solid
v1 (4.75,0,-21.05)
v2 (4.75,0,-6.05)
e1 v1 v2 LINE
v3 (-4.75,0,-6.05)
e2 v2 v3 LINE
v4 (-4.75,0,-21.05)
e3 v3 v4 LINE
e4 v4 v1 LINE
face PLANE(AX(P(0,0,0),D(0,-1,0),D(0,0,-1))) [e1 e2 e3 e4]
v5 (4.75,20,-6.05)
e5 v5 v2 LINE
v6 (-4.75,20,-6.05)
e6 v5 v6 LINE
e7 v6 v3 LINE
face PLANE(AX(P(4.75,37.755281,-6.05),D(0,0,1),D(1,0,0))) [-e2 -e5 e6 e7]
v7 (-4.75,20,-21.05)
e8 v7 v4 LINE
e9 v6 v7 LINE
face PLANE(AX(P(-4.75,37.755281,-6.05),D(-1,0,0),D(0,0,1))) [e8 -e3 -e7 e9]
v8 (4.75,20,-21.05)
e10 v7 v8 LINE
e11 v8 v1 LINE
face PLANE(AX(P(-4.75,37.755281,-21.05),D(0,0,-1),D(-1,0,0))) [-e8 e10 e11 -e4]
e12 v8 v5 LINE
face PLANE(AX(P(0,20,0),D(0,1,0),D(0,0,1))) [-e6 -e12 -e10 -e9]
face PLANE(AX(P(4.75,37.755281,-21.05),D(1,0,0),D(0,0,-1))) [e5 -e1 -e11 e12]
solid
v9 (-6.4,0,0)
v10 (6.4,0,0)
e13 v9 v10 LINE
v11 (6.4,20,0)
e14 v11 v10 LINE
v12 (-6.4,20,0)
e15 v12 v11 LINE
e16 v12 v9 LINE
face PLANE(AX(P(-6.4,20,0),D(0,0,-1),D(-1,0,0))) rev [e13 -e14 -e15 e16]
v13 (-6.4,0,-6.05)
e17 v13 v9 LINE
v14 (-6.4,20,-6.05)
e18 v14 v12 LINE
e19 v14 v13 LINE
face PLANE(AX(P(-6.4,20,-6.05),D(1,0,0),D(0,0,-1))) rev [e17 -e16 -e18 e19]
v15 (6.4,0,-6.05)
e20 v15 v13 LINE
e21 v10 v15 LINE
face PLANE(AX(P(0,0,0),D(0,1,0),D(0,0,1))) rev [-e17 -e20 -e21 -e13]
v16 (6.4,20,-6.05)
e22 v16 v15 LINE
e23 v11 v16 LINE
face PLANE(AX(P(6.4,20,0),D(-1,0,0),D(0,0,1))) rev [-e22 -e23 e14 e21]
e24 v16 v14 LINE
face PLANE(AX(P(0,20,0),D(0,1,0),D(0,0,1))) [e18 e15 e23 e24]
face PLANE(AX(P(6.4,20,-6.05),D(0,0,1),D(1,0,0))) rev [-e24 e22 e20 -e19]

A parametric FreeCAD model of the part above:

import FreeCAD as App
import Part
import Sketcher

V = App.Vector
Q = App.Units.Quantity


def add_polygon(sketch, points):
    """Adds a closed chain of lines whose ends are joined by coincident constraints."""
    first, n = sketch.GeometryCount, len(points)
    for a, b in zip(points, points[1:] + points[:1]):
        sketch.addGeometry(Part.LineSegment(App.Vector(*a, 0), App.Vector(*b, 0)), False)
    for i in range(n):
        sketch.addConstraint(Sketcher.Constraint("Coincident", first + i, 2, first + (i + 1) % n, 1))

doc = App.newDocument("Part")
body = doc.addObject("PartDesign::Body", "Body")

# Sketch on XZ plane
sketch1 = body.newObject("Sketcher::SketchObject", "Sketch")
sketch1.AttachmentSupport = (doc.getObject("XZ_Plane"), [""])
sketch1.MapMode = "FlatFace"
add_polygon(sketch1, [(-6, -6), (-6, 0), (6, 0), (6, -6)])  # lines 0-3
sketch1.addConstraint([
    Sketcher.Constraint("Vertical", 0),
    Sketcher.Constraint("Horizontal", 1),
    Sketcher.Constraint("Vertical", 2),
    Sketcher.Constraint("Horizontal", 3),
    Sketcher.Constraint("Symmetric", 0, 2, 1, 2, -1, 1),
    Sketcher.Constraint("DistanceX", 1, 1, 1, 2, Q("12.8 mm")),
    Sketcher.Constraint("DistanceY", 0, 1, 0, 2, Q("6.05 mm")),
])
pad1 = body.newObject("PartDesign::Pad", "Pad")
pad1.Profile = sketch1
pad1.Length = 20
pad1.Reversed = True
body2 = doc.addObject("PartDesign::Body", "Body001")

# Sketch on XZ plane
sketch2 = body2.newObject("Sketcher::SketchObject", "Sketch001")
sketch2.AttachmentSupport = (doc.getObject("XZ_Plane001"), [""])
sketch2.MapMode = "FlatFace"
add_polygon(sketch2, [(-5, -6), (-5, -21), (5, -21), (5, -6)])  # lines 0-3
sketch2.addConstraint([
    Sketcher.Constraint("Vertical", 0),
    Sketcher.Constraint("Horizontal", 1),
    Sketcher.Constraint("Vertical", 2),
    Sketcher.Constraint("Horizontal", 3),
    Sketcher.Constraint("DistanceY", 0, 2, 0, 1, Q("15 mm")),
    Sketcher.Constraint("DistanceX", 1, 1, 1, 2, Q("9.5 mm")),
    Sketcher.Constraint("DistanceX", 0, 2, -1, 1, Q("4.75 mm")),
    Sketcher.Constraint("DistanceY", 0, 2, -1, 1, Q("21.05 mm")),
])
pad2 = body2.newObject("PartDesign::Pad", "Pad001")
pad2.Profile = sketch2
pad2.Length = 20
pad2.Reversed = True

doc.recompute()
